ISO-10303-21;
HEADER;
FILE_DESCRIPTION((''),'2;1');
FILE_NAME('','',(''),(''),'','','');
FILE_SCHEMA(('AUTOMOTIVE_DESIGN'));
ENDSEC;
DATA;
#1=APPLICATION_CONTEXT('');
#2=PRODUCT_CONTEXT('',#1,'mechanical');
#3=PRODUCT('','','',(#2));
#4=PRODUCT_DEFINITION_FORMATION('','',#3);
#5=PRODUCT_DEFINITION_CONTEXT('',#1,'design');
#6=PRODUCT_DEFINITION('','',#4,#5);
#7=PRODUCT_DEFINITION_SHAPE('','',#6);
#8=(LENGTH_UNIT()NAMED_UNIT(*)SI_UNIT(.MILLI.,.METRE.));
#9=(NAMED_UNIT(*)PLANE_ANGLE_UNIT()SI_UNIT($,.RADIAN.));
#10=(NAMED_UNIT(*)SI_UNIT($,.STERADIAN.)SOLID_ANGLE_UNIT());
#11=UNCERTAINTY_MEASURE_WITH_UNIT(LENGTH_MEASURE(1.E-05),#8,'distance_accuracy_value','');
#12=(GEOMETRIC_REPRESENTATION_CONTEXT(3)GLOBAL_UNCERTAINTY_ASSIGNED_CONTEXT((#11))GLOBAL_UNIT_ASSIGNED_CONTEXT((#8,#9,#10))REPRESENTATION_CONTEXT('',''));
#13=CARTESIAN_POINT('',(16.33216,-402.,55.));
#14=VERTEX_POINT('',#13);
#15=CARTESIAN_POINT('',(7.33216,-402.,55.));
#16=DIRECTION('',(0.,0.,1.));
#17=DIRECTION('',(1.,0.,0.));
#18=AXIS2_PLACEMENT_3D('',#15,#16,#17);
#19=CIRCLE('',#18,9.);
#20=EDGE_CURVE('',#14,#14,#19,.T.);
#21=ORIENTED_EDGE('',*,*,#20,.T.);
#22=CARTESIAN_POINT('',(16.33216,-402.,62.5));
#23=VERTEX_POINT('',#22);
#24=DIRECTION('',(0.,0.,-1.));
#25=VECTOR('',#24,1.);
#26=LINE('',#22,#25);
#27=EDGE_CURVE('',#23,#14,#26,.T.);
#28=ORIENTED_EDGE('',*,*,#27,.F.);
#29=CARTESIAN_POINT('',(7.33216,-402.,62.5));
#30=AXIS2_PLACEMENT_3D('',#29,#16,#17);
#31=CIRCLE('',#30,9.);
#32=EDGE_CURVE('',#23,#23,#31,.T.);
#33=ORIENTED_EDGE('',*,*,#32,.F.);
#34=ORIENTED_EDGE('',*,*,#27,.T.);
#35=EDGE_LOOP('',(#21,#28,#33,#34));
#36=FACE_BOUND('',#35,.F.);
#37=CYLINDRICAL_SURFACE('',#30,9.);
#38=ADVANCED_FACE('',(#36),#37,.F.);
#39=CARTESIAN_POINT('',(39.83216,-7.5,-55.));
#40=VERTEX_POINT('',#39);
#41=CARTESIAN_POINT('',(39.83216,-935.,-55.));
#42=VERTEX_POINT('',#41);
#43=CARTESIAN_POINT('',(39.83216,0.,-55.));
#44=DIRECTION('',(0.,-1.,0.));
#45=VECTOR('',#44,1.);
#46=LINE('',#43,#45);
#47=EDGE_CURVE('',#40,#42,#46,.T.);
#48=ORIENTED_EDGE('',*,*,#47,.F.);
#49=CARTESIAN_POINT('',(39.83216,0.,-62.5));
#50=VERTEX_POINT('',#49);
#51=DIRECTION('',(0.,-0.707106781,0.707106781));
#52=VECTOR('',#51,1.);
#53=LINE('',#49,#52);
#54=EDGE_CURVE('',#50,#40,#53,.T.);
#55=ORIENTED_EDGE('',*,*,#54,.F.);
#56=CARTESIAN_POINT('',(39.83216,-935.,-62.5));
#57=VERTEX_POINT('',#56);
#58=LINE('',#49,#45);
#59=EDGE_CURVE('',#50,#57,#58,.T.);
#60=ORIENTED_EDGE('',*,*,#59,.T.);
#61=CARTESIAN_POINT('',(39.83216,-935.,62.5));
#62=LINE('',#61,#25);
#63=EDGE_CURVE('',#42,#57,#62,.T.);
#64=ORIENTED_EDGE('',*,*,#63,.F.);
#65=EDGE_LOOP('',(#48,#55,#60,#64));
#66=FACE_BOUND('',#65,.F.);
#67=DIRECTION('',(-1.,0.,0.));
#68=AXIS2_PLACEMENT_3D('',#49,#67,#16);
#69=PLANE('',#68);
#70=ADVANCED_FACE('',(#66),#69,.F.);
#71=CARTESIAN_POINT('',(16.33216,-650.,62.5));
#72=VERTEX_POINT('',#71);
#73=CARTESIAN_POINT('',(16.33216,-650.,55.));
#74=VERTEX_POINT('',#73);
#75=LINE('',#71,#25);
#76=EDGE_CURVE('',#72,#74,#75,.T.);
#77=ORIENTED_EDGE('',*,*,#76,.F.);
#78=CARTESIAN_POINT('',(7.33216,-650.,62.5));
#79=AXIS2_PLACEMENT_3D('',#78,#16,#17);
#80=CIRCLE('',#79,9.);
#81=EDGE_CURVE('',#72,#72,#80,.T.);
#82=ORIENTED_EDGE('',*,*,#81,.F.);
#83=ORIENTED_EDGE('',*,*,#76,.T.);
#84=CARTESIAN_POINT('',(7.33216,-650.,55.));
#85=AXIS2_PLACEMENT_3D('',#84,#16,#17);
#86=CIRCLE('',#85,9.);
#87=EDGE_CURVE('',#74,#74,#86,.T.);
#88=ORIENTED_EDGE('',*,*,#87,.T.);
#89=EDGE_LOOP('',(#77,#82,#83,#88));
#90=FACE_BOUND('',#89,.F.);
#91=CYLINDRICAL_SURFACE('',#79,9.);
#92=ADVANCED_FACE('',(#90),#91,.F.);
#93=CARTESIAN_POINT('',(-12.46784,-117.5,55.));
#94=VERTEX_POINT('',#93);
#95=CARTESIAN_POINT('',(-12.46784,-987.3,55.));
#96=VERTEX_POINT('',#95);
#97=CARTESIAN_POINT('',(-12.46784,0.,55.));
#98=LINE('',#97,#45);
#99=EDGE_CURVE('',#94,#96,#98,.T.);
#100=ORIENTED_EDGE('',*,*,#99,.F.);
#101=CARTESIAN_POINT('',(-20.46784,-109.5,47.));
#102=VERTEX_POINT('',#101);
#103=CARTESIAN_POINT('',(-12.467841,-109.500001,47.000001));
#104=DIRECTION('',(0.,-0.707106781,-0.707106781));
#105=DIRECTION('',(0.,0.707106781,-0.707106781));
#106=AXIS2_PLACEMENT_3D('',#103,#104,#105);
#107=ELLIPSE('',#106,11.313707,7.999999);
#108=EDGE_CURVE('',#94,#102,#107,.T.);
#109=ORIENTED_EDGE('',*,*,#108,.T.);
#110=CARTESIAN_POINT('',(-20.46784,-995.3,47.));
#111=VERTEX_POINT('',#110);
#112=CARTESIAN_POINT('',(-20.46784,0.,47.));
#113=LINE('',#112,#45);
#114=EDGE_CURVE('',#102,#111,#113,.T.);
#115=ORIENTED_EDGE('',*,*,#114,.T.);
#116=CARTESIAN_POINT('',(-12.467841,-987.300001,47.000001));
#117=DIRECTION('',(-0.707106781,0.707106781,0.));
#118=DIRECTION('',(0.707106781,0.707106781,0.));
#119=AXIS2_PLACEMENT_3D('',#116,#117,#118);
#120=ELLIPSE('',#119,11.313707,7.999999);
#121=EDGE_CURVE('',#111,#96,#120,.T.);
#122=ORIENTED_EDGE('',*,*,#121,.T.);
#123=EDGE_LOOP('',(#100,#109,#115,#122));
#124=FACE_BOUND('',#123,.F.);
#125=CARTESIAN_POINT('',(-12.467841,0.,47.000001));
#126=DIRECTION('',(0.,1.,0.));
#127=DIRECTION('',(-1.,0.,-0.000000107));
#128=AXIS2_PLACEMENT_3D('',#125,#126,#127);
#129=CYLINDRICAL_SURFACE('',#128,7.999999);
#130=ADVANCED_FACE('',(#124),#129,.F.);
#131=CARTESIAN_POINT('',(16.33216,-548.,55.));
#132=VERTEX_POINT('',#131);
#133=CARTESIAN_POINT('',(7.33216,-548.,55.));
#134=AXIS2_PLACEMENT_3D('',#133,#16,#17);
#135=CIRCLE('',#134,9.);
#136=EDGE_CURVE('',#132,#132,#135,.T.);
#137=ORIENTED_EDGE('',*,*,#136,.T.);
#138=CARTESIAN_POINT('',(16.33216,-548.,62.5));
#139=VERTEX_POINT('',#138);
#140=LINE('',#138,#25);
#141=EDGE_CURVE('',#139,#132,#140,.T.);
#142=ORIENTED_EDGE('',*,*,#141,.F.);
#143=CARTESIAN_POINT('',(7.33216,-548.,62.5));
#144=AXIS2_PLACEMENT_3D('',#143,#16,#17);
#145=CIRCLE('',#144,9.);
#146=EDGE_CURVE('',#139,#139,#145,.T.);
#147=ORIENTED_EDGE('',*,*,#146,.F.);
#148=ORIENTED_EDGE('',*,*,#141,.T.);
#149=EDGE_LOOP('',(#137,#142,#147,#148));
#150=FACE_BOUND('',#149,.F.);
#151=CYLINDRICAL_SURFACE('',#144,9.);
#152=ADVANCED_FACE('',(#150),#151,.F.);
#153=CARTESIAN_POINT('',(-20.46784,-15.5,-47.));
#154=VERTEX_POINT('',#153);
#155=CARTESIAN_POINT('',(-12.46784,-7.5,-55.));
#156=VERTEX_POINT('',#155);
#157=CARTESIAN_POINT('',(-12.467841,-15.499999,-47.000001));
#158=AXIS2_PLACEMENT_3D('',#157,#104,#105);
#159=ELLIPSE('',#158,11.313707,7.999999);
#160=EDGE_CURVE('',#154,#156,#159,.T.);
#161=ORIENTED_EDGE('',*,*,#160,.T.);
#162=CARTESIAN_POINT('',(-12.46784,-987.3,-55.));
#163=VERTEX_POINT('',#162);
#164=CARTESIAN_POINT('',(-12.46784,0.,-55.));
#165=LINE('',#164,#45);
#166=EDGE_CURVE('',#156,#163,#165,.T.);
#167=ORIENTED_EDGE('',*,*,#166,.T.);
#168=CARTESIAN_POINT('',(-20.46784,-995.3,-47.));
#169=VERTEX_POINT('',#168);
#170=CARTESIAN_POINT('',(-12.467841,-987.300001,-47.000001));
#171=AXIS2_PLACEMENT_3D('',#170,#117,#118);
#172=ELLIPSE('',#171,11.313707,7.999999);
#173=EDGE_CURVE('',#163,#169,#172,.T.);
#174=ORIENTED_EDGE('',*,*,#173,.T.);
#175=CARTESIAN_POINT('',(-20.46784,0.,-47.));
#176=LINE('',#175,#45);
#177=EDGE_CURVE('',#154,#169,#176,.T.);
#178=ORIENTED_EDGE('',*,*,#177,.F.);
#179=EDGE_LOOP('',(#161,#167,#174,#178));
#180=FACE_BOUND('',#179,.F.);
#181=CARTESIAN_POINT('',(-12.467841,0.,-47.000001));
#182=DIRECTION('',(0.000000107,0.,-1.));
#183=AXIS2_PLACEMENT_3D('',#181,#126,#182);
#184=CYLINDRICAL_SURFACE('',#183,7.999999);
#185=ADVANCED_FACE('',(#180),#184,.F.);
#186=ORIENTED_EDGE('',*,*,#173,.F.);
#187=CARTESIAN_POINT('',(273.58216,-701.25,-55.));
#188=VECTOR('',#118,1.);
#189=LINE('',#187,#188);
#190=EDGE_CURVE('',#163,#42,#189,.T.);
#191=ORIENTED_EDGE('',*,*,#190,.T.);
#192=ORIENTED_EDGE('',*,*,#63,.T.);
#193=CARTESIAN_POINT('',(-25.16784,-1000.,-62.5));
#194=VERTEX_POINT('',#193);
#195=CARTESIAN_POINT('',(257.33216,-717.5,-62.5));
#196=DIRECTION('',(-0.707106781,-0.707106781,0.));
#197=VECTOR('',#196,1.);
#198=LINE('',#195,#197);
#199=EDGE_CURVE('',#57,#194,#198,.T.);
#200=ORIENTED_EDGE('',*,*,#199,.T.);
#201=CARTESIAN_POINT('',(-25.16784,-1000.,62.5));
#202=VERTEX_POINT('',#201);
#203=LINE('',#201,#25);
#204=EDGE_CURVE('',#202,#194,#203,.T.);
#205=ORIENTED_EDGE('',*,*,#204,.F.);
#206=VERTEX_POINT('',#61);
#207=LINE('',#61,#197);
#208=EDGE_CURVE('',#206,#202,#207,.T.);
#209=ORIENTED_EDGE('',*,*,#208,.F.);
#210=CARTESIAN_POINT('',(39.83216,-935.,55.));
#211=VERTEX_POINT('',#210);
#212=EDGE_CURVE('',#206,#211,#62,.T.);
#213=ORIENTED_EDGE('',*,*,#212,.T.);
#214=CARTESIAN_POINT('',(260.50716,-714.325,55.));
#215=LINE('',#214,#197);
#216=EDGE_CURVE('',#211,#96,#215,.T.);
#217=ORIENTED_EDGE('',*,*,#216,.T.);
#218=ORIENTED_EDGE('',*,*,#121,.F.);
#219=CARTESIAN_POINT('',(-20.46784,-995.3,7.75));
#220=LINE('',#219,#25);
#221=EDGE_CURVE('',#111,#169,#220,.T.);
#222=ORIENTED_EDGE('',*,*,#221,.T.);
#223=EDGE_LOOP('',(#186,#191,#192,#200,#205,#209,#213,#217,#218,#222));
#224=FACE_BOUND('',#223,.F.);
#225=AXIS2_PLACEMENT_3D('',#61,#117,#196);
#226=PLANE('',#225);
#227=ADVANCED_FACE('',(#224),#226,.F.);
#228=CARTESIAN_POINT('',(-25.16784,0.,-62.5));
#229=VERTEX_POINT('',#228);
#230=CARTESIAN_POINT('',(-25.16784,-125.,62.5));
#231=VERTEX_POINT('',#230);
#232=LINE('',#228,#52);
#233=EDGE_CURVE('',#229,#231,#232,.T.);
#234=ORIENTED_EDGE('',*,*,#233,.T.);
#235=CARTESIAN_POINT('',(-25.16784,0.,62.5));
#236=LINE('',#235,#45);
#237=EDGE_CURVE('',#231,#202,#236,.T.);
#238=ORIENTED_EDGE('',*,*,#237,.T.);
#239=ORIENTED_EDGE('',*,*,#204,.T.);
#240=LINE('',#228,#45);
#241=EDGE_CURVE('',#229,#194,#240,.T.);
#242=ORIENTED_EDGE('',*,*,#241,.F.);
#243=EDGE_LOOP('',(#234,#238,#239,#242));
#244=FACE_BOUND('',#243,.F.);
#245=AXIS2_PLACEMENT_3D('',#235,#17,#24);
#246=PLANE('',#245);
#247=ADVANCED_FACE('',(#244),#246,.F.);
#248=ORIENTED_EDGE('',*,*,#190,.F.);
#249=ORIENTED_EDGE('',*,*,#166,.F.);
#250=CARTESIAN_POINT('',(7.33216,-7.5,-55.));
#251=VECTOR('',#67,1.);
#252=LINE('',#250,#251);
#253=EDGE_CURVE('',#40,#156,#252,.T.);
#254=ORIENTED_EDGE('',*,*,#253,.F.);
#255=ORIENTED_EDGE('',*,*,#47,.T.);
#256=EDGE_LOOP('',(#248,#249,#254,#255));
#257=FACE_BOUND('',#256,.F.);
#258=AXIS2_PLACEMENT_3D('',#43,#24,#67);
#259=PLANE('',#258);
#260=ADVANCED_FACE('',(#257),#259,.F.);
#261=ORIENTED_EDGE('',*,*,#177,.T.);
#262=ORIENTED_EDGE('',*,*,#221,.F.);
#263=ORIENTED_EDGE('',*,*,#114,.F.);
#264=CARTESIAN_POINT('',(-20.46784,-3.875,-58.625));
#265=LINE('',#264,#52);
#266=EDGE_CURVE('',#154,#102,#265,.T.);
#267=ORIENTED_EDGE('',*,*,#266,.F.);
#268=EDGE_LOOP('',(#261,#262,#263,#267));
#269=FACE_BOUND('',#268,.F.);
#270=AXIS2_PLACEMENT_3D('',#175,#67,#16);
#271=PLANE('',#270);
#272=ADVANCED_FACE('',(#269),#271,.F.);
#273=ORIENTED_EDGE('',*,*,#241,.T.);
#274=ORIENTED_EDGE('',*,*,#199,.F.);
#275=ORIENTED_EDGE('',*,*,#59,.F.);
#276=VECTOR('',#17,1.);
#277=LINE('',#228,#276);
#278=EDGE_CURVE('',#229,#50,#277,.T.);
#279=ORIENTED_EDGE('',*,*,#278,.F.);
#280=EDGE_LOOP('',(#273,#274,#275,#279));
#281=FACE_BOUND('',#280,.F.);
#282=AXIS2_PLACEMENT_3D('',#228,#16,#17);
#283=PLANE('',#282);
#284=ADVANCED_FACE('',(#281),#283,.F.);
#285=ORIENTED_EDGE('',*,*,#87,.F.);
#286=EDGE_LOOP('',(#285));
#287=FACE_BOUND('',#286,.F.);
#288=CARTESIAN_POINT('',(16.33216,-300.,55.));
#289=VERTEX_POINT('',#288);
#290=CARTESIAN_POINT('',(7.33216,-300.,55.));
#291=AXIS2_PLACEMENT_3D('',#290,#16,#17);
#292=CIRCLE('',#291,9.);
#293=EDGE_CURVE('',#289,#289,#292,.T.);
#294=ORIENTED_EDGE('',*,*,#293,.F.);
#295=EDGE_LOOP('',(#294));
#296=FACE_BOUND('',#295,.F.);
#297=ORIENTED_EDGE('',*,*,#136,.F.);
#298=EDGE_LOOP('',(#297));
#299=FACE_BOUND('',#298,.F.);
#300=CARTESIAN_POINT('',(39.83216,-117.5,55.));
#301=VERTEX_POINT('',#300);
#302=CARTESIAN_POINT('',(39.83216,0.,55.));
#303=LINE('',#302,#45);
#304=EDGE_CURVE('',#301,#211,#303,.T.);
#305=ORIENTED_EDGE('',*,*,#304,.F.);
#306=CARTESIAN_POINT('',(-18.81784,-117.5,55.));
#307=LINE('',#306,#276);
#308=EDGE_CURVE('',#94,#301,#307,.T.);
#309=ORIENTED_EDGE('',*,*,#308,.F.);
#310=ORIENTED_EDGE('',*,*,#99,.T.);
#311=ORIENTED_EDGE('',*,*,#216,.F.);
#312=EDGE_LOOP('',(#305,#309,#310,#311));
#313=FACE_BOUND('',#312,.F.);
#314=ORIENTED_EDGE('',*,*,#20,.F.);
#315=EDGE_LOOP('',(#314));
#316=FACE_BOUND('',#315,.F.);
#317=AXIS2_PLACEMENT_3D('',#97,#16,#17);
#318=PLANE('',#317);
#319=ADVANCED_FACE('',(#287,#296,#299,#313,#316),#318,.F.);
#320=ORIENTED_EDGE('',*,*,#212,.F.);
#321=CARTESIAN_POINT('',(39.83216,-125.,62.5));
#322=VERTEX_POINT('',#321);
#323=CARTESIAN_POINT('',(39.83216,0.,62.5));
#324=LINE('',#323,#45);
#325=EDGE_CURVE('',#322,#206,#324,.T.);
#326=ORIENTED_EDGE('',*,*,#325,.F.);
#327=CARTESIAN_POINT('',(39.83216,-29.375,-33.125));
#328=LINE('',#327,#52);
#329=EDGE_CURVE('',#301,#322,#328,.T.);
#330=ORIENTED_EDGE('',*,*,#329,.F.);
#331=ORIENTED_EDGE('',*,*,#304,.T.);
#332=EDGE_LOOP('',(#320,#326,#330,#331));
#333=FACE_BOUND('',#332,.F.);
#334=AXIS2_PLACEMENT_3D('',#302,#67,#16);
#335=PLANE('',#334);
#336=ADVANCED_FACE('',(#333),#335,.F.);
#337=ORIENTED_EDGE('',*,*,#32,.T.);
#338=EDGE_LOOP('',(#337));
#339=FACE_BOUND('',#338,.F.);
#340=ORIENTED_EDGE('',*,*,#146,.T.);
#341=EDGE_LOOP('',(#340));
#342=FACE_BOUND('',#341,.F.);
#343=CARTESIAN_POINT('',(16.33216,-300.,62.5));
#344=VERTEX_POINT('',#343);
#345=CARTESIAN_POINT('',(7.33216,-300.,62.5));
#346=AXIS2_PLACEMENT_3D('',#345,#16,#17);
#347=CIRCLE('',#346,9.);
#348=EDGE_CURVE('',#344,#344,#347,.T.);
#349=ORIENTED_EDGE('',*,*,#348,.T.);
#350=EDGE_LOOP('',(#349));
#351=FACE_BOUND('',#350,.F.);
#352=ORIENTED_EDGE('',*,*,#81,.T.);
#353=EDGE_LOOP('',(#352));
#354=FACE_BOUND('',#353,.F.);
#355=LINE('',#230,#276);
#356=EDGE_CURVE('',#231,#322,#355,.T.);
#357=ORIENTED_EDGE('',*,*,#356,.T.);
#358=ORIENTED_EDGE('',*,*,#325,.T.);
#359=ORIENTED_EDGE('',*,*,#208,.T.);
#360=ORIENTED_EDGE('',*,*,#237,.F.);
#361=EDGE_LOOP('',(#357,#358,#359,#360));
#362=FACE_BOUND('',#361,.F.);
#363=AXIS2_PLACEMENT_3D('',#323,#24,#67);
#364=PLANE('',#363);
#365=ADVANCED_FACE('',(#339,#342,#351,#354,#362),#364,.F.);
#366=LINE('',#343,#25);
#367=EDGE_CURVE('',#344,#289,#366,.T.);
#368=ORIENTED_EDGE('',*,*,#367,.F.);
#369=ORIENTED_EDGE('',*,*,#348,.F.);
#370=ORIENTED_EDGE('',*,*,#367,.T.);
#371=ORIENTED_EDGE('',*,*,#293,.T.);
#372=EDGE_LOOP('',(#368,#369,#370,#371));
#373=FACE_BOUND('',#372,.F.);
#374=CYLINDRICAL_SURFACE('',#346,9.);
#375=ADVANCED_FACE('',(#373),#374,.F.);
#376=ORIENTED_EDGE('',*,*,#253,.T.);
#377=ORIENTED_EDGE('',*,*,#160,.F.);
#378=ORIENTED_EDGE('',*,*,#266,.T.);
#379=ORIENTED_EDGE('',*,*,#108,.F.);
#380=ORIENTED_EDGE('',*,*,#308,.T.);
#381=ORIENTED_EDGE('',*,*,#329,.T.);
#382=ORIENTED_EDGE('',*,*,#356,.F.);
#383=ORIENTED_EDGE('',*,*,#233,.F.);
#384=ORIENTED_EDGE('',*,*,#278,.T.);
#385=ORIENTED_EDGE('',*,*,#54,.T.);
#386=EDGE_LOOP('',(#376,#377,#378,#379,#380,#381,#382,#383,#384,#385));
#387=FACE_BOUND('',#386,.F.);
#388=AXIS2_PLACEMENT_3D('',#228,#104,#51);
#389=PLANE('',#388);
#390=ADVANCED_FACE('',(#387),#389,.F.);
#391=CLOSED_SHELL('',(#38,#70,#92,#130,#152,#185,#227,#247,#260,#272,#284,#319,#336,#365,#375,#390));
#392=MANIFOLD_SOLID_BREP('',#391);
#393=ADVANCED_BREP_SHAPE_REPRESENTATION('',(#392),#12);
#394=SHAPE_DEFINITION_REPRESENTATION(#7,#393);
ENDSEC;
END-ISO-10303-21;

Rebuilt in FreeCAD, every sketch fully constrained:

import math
import FreeCAD as App
import Part
import Sketcher

doc = App.newDocument("Part")
body = doc.addObject("PartDesign::Body", "Body")

# Sketch on XZ plane
sketch1 = body.newObject("Sketcher::SketchObject", "Sketch")
sketch1.AttachmentSupport = (doc.getObject("XZ_Plane"), [""])
sketch1.MapMode = "FlatFace"
sketch1.addGeometry([
    Part.LineSegment(App.Vector(-25, 62, 0), App.Vector(-25, -62, 0)),  # 0
    Part.LineSegment(App.Vector(-25, -62, 0), App.Vector(40, -62, 0)),  # 1
    Part.LineSegment(App.Vector(40, -62, 0), App.Vector(40, -55, 0)),  # 2
    Part.LineSegment(App.Vector(40, -55, 0), App.Vector(-12, -55, 0)),  # 3
    Part.ArcOfCircle(Part.Circle(App.Vector(-12, -47, 0), App.Vector(0, 0, 1), 8), math.radians(180), math.radians(270)),  # 4
    Part.LineSegment(App.Vector(-20, -47, 0), App.Vector(-20, 47, 0)),  # 5
    Part.ArcOfCircle(Part.Circle(App.Vector(-12, 47, 0), App.Vector(0, 0, 1), 8), math.radians(90), math.radians(180)),  # 6
    Part.LineSegment(App.Vector(-12, 55, 0), App.Vector(40, 55, 0)),  # 7
    Part.LineSegment(App.Vector(40, 55, 0), App.Vector(40, 62, 0)),  # 8
    Part.LineSegment(App.Vector(40, 62, 0), App.Vector(-25, 62, 0)),  # 9
], False)
sketch1.addConstraint([
    Sketcher.Constraint("Coincident", 0, 2, 1, 1),
    Sketcher.Constraint("Coincident", 1, 2, 2, 1),
    Sketcher.Constraint("Coincident", 2, 2, 3, 1),
    Sketcher.Constraint("Tangent", 3, 2, 4, 2),
    Sketcher.Constraint("Tangent", 4, 1, 5, 1),
    Sketcher.Constraint("Tangent", 5, 2, 6, 2),
    Sketcher.Constraint("Tangent", 6, 1, 7, 1),
    Sketcher.Constraint("Coincident", 7, 2, 8, 1),
    Sketcher.Constraint("Coincident", 8, 2, 9, 1),
    Sketcher.Constraint("Coincident", 9, 2, 0, 1),
    Sketcher.Constraint("Vertical", 0),
    Sketcher.Constraint("Horizontal", 1),
    Sketcher.Constraint("Vertical", 2),
    Sketcher.Constraint("Horizontal", 3),
    Sketcher.Constraint("Vertical", 5),
    Sketcher.Constraint("Horizontal", 7),
    Sketcher.Constraint("Vertical", 8),
    Sketcher.Constraint("Horizontal", 9),
    Sketcher.Constraint("Equal", 4, 6),
    Sketcher.Constraint("Symmetric", 2, 2, 7, 2, -1),
    Sketcher.Constraint("Equal", 2, 8),
    Sketcher.Constraint("Radius", 4, 7.999999),
    Sketcher.Constraint("DistanceX", 1, 1, 1, 2, 65.0),
    Sketcher.Constraint("DistanceY", 0, 2, 0, 1, 125.0),
    Sketcher.Constraint("DistanceY", 5, 1, 5, 2, 94.0),
    Sketcher.Constraint("DistanceX", 3, 2, 3, 1, 52.3),
    Sketcher.Constraint("DistanceX", 4, 3, -1, 1, 12.467841),
])
pad1 = body.newObject("PartDesign::Pad", "Pad")
pad1.Profile = sketch1
pad1.Length = 1000

# Sketch on YZ plane
sketch2 = body.newObject("Sketcher::SketchObject", "Sketch001")
sketch2.AttachmentSupport = (doc.getObject("YZ_Plane"), [""])
sketch2.MapMode = "FlatFace"
sketch2.AttachmentOffset = App.Placement(App.Vector(0, 0, -25.16784), App.Rotation())
sketch2.addGeometry([
    Part.LineSegment(App.Vector(-125, 62, 0), App.Vector(0, 62, 0)),
    Part.LineSegment(App.Vector(0, 62, 0), App.Vector(0, -62, 0)),
    Part.LineSegment(App.Vector(0, -62, 0), App.Vector(-125, 62, 0)),
], False)
sketch2.addConstraint([
    Sketcher.Constraint("Coincident", 0, 2, 1, 1),
    Sketcher.Constraint("Coincident", 1, 2, 2, 1),
    Sketcher.Constraint("Coincident", 2, 2, 0, 1),
    Sketcher.Constraint("Horizontal", 0),
    Sketcher.Constraint("Vertical", 1),
    Sketcher.Constraint("Symmetric", 0, 2, 1, 2, -1, 1),
    Sketcher.Constraint("Equal", 0, 1),
    Sketcher.Constraint("DistanceX", 0, 1, 0, 2, 125.0),
])
pocket1 = body.newObject("PartDesign::Pocket", "Pocket")
pocket1.Profile = sketch2
pocket1.Type = "ThroughAll"
pocket1.Reversed = True

# Sketch on XY plane
sketch3 = body.newObject("Sketcher::SketchObject", "Sketch002")
sketch3.AttachmentSupport = (doc.getObject("XY_Plane"), [""])
sketch3.MapMode = "FlatFace"
sketch3.AttachmentOffset = App.Placement(App.Vector(0, 0, 62.5), App.Rotation())
sketch3.addGeometry([
    Part.LineSegment(App.Vector(-25, -1000, 0), App.Vector(40, -1000, 0)),
    Part.LineSegment(App.Vector(40, -1000, 0), App.Vector(40, -935, 0)),
    Part.LineSegment(App.Vector(40, -935, 0), App.Vector(-25, -1000, 0)),
], False)
sketch3.addConstraint([
    Sketcher.Constraint("Coincident", 0, 2, 1, 1),
    Sketcher.Constraint("Coincident", 1, 2, 2, 1),
    Sketcher.Constraint("Coincident", 2, 2, 0, 1),
    Sketcher.Constraint("Horizontal", 0),
    Sketcher.Constraint("Vertical", 1),
    Sketcher.Constraint("Equal", 0, 1),
    Sketcher.Constraint("DistanceX", 0, 1, 0, 2, 65.0),
    Sketcher.Constraint("DistanceY", 0, 2, -1, 1, 1000.0),
    Sketcher.Constraint("DistanceX", -1, 1, 0, 2, 39.83216),
])
pocket2 = body.newObject("PartDesign::Pocket", "Pocket001")
pocket2.Profile = sketch3
pocket2.Type = "ThroughAll"

# Sketch on XY plane
sketch4 = body.newObject("Sketcher::SketchObject", "Sketch003")
sketch4.AttachmentSupport = (doc.getObject("XY_Plane"), [""])
sketch4.MapMode = "FlatFace"
sketch4.AttachmentOffset = App.Placement(App.Vector(0, 0, 62.5), App.Rotation())
sketch4.addGeometry([
    Part.Circle(App.Vector(7, -548, 0), App.Vector(0, 0, 1), 9),
    Part.Circle(App.Vector(7, -650, 0), App.Vector(0, 0, 1), 9),
], False)
sketch4.addConstraint([
    Sketcher.Constraint("Equal", 0, 1),
    Sketcher.Constraint("Vertical", 0, 3, 1, 3),
    Sketcher.Constraint("Diameter", 0, 18.0),
    Sketcher.Constraint("DistanceY", 0, 3, -1, 1, 548.0),
    Sketcher.Constraint("DistanceY", 1, 3, -1, 1, 650.0),
    Sketcher.Constraint("DistanceX", -1, 1, 0, 3, 7.33216),
])
pocket3 = body.newObject("PartDesign::Pocket", "Pocket002")
pocket3.Profile = sketch4
pocket3.Length = 7.5

# Sketch on XY plane
sketch5 = body.newObject("Sketcher::SketchObject", "Sketch004")
sketch5.AttachmentSupport = (doc.getObject("XY_Plane"), [""])
sketch5.MapMode = "FlatFace"
sketch5.AttachmentOffset = App.Placement(App.Vector(0, 0, 62.5), App.Rotation())
sketch5.addGeometry([
    Part.Circle(App.Vector(7, -300, 0), App.Vector(0, 0, 1), 9),
    Part.Circle(App.Vector(7, -402, 0), App.Vector(0, 0, 1), 9),
], False)
sketch5.addConstraint([
    Sketcher.Constraint("Equal", 0, 1),
    Sketcher.Constraint("Vertical", 0, 3, 1, 3),
    Sketcher.Constraint("Diameter", 0, 18.0),
    Sketcher.Constraint("DistanceY", 0, 3, -1, 1, 300.0),
    Sketcher.Constraint("DistanceY", 1, 3, -1, 1, 402.0),
    Sketcher.Constraint("DistanceX", -1, 1, 0, 3, 7.33216),
])
pocket4 = body.newObject("PartDesign::Pocket", "Pocket003")
pocket4.Profile = sketch5
pocket4.Length = 7.5

doc.recompute()
